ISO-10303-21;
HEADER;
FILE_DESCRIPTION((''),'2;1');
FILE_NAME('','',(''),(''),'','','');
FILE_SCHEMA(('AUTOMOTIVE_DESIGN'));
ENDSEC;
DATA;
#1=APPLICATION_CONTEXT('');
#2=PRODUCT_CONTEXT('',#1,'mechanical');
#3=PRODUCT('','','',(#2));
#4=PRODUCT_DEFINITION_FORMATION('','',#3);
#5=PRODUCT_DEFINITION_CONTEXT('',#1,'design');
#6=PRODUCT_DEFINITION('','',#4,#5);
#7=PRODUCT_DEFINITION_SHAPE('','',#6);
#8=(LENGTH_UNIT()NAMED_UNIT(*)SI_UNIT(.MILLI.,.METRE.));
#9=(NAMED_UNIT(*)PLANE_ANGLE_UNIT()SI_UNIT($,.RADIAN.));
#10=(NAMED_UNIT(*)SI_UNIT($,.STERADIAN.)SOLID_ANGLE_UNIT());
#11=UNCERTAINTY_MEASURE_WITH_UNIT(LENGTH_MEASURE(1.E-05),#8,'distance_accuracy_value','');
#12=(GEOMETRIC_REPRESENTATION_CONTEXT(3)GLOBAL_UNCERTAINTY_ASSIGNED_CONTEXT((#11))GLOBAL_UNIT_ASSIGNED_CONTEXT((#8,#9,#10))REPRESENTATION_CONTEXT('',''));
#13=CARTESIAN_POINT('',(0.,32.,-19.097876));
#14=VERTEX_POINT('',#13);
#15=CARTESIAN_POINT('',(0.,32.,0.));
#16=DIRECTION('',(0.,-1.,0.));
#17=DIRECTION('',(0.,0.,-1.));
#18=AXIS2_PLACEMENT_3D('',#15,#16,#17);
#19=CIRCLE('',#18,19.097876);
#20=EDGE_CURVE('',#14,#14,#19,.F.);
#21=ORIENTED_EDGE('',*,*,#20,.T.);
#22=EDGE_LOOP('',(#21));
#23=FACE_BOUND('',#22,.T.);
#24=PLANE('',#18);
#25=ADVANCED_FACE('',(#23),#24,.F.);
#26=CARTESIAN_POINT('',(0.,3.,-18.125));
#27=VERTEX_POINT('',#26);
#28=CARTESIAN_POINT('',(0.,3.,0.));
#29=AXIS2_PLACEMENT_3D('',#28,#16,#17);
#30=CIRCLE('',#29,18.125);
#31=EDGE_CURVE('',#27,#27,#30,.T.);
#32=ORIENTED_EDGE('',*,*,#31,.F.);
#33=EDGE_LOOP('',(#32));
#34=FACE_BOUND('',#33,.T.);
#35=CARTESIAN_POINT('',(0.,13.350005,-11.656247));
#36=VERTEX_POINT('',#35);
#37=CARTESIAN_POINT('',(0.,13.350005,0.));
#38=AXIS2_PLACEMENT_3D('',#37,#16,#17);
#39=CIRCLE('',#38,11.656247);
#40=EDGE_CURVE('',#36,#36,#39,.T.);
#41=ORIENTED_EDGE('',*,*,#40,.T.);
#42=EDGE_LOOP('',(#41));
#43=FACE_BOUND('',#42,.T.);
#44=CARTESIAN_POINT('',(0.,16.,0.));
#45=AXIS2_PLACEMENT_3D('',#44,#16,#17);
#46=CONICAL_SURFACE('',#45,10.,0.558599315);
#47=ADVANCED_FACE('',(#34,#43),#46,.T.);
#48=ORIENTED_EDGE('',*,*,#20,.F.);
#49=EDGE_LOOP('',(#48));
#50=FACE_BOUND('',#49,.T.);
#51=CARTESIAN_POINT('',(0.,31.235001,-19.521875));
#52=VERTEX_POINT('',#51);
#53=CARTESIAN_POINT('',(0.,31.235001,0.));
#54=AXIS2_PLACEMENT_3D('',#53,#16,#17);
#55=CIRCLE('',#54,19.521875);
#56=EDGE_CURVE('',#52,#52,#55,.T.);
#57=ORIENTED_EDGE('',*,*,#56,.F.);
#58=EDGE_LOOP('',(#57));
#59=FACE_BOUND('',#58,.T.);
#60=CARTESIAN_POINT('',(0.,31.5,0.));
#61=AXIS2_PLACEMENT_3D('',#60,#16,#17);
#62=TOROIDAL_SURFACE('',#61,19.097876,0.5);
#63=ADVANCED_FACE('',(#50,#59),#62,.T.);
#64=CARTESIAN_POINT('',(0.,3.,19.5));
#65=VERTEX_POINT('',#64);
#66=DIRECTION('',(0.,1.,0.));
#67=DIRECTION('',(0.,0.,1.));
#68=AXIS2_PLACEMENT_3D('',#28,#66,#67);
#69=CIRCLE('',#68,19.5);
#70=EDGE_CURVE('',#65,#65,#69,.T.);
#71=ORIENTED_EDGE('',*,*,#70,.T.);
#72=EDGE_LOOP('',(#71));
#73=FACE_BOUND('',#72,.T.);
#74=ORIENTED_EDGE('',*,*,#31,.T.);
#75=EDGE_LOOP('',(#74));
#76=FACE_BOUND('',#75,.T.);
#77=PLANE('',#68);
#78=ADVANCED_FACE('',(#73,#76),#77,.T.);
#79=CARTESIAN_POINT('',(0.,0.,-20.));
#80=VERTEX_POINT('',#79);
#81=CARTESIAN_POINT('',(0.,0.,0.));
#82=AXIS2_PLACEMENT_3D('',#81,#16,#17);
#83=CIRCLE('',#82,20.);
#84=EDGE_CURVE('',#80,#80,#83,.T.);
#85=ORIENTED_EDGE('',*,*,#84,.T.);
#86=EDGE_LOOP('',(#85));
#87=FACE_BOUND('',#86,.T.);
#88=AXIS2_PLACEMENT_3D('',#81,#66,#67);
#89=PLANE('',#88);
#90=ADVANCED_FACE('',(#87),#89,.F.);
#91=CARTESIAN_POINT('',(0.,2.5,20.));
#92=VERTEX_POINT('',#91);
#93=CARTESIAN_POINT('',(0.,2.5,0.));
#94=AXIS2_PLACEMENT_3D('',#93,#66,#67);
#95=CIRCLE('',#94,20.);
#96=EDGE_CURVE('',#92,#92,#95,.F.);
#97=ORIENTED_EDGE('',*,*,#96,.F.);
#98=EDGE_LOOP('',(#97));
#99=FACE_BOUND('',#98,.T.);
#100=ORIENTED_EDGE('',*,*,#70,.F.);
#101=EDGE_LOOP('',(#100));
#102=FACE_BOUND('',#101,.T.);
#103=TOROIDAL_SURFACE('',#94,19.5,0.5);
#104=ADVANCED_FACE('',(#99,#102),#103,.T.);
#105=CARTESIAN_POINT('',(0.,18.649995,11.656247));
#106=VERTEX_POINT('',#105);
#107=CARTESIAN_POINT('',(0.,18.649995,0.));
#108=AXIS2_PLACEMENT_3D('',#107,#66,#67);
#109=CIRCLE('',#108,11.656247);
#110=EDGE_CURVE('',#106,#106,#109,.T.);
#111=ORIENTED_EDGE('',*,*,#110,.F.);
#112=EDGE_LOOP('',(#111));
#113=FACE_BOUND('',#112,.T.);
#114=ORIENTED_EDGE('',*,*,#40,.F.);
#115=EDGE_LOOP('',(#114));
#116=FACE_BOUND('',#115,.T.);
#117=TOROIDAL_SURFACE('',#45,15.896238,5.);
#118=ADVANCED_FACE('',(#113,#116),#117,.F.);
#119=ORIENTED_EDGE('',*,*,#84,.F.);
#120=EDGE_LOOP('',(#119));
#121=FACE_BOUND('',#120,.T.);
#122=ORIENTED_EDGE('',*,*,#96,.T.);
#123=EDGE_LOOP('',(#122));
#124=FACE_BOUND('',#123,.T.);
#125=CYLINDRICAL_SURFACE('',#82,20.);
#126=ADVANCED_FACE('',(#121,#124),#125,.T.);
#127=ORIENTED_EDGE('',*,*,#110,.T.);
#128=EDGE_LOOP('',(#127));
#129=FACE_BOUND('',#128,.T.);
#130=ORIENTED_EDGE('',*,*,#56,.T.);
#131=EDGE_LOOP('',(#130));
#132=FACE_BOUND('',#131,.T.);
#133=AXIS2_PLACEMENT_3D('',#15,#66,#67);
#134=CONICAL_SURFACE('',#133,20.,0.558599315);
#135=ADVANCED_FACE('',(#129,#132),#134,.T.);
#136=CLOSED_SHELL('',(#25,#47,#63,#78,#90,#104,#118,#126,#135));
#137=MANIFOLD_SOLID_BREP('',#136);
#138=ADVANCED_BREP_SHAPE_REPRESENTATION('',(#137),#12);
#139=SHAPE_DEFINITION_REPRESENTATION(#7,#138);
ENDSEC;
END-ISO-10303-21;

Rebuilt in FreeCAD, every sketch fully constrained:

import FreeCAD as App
import Part
import Sketcher

V = App.Vector


def edges_at(feature, points):
    """Names of the edges that pass closest to the given points."""
    edges = feature.Shape.Edges
    near = lambda p: min(range(len(edges)), key=lambda i: edges[i].distToShape(Part.Vertex(*p))[0])
    return sorted({f"Edge{near(p) + 1}" for p in points})


def add_polygon(sketch, points):
    """Adds a closed chain of lines whose ends are joined by coincident constraints."""
    first, n = sketch.GeometryCount, len(points)
    for a, b in zip(points, points[1:] + points[:1]):
        sketch.addGeometry(Part.LineSegment(App.Vector(*a, 0), App.Vector(*b, 0)), False)
    for i in range(n):
        sketch.addConstraint(Sketcher.Constraint("Coincident", first + i, 2, first + (i + 1) % n, 1))

doc = App.newDocument("Part")
params = doc.addObject("Spreadsheet::Sheet", "Params")
for row, (alias, value) in enumerate([
    ("sketch1_width", "3 mm"),
    ("sketch1_width2", "32 mm"),
    ("sketch1_height", "20 mm"),
    ("revolution_angle", "360 deg"),
    ("fillet_radius", "5 mm"),
    ("fillet2_radius", "0.5 mm"),
    ("fillet3_radius", "0.5 mm"),
], start=1):
    params.set(f"A{row}", alias)
    params.set(f"B{row}", "=" + value)
    params.setAlias(f"B{row}", alias)

body = doc.addObject("PartDesign::Body", "Body")

# Sketch on YZ plane
sketch1 = body.newObject("Sketcher::SketchObject", "Sketch")
sketch1.AttachmentSupport = (doc.getObject("YZ_Plane"), [""])
sketch1.MapMode = "FlatFace"
add_polygon(sketch1, [(0, 0), (0, -20), (3, -20), (3, -18.1), (16, -10), (32, -20), (32, 0)])  # lines 0-6
sketch1.addConstraint([
    Sketcher.Constraint("Vertical", 0),
    Sketcher.Constraint("Horizontal", 1),
    Sketcher.Constraint("Vertical", 2),
    Sketcher.Constraint("Vertical", 5),
    Sketcher.Constraint("Horizontal", 6),
    Sketcher.Constraint("Coincident", 6, 2, -1, 1),
    Sketcher.Constraint("Horizontal", 1, 2, 4, 2),
    Sketcher.Constraint("DistanceX", 1, 1, 1, 2, 3.0),
    Sketcher.Constraint("DistanceX", 6, 2, 6, 1, 32.0),
    Sketcher.Constraint("DistanceY", 0, 2, 0, 1, 20.0),
    Sketcher.Constraint("DistanceX", -1, 1, 3, 2, 16.0),
    Sketcher.Constraint("DistanceY", 3, 2, -1, 1, 10.0),
    Sketcher.Constraint("DistanceY", 2, 1, 2, 2, 1.875),
])
sketch1.setExpression("Constraints[14]", "Params.sketch1_width")
sketch1.setExpression("Constraints[15]", "Params.sketch1_width2")
sketch1.setExpression("Constraints[16]", "Params.sketch1_height")
revolution = body.newObject("PartDesign::Revolution", "Revolution")
revolution.Profile = sketch1
revolution.ReferenceAxis = (sketch1, ["H_Axis"])
revolution.setExpression("Angle", "Params.revolution_angle")
doc.recompute()

fillet = body.newObject("PartDesign::Fillet", "Fillet")
fillet.Base = (revolution, edges_at(revolution, [(0, 16, 10)]))
fillet.setExpression("Radius", "Params.fillet_radius")
doc.recompute()

fillet2 = body.newObject("PartDesign::Fillet", "Fillet001")
fillet2.Base = (fillet, edges_at(fillet, [(0, 32, 20)]))
fillet2.setExpression("Radius", "Params.fillet2_radius")
doc.recompute()

fillet3 = body.newObject("PartDesign::Fillet", "Fillet002")
fillet3.Base = (fillet2, edges_at(fillet2, [(0, 3, 20)]))
fillet3.setExpression("Radius", "Params.fillet3_radius")

doc.recompute()
